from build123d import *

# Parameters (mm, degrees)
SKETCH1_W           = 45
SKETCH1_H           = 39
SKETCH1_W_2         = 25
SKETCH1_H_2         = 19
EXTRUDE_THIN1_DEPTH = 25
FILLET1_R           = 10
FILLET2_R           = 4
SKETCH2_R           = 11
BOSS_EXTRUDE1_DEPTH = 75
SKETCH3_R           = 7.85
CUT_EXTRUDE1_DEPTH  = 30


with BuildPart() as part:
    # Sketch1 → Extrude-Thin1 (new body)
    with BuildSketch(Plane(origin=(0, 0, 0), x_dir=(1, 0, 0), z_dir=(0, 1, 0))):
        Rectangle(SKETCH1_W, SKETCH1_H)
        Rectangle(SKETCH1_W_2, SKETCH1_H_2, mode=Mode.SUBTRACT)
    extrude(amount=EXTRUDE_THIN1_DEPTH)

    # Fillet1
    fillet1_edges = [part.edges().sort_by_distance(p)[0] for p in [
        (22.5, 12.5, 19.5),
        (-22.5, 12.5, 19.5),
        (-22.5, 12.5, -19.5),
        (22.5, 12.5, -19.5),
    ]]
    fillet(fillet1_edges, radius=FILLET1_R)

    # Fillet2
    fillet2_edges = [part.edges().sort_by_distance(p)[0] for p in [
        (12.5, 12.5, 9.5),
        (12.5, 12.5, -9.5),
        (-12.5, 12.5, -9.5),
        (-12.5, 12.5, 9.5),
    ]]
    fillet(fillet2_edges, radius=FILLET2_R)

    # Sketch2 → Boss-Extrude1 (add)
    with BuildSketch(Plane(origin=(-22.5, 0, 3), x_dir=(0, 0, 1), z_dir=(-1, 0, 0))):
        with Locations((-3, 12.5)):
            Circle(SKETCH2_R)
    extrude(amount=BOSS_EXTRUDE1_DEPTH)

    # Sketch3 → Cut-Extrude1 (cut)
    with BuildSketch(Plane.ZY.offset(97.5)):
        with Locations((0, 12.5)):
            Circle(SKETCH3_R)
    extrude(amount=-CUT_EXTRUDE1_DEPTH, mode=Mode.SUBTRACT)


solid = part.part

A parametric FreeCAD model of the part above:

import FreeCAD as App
import Part
import Sketcher

V = App.Vector
Q = App.Units.Quantity


def edges_at(feature, points):
    """Names of the edges that pass closest to the given points."""
    edges = feature.Shape.Edges
    near = lambda p: min(range(len(edges)), key=lambda i: edges[i].distToShape(Part.Vertex(*p))[0])
    return sorted({f"Edge{near(p) + 1}" for p in points})


def add_polygon(sketch, points):
    """Adds a closed chain of lines whose ends are joined by coincident constraints."""
    first, n = sketch.GeometryCount, len(points)
    for a, b in zip(points, points[1:] + points[:1]):
        sketch.addGeometry(Part.LineSegment(App.Vector(*a, 0), App.Vector(*b, 0)), False)
    for i in range(n):
        sketch.addConstraint(Sketcher.Constraint("Coincident", first + i, 2, first + (i + 1) % n, 1))

doc = App.newDocument("Part")
body = doc.addObject("PartDesign::Body", "Body")

sketch1 = body.newObject("Sketcher::SketchObject", "Sketch")
sketch1.AttachmentSupport = (doc.getObject("XZ_Plane"), [""])
sketch1.MapMode = "FlatFace"
add_polygon(sketch1, [(-22, -20), (-22, 20), (22, 20), (22, -20)])
add_polygon(sketch1, [(12, 10), (-12, 10), (-12, -10), (12, -10)])
sketch1.addConstraint([
    Sketcher.Constraint("Vertical", 0),
    Sketcher.Constraint("Horizontal", 1),
    Sketcher.Constraint("Vertical", 2),
    Sketcher.Constraint("Horizontal", 3),
    Sketcher.Constraint("Horizontal", 4),
    Sketcher.Constraint("Vertical", 5),
    Sketcher.Constraint("Horizontal", 6),
    Sketcher.Constraint("Vertical", 7),
    Sketcher.Constraint("Symmetric", 0, 2, 2, 2, -1, 1),
    Sketcher.Constraint("Symmetric", 4, 2, 6, 2, -1, 1),
    Sketcher.Constraint("DistanceX", 1, 1, 1, 2, Q("45 mm")),
    Sketcher.Constraint("DistanceX", 4, 2, 4, 1, Q("25 mm")),
    Sketcher.Constraint("DistanceY", 0, 1, 0, 2, Q("39 mm")),
    Sketcher.Constraint("DistanceY", 5, 2, 5, 1, Q("19 mm")),
])
pad1 = body.newObject("PartDesign::Pad", "Pad")
pad1.Profile = sketch1
pad1.Length = 25
pad1.Reversed = True
doc.recompute()

fillet = body.newObject("PartDesign::Fillet", "Fillet")
fillet.Base = (pad1, edges_at(pad1, [
    (22.5, 12.5, 19.5),
    (-22.5, 12.5, 19.5),
    (-22.5, 12.5, -19.5),
    (22.5, 12.5, -19.5),
]))
fillet.Radius = 10
doc.recompute()

fillet2 = body.newObject("PartDesign::Fillet", "Fillet001")
fillet2.Base = (fillet, edges_at(fillet, [
    (12.5, 12.5, 9.5),
    (12.5, 12.5, -9.5),
    (-12.5, 12.5, -9.5),
    (-12.5, 12.5, 9.5),
]))
fillet2.Radius = 4

sketch2 = body.newObject("Sketcher::SketchObject", "Sketch001")
sketch2.AttachmentSupport = (doc.getObject("YZ_Plane"), [""])
sketch2.MapMode = "FlatFace"
sketch2.AttachmentOffset = App.Placement(V(0, 0, -22.5), App.Rotation())
sketch2.addGeometry(Part.Circle(V(12, 0, 0), V(0, 0, 1), 11), False)
sketch2.addConstraint([
    Sketcher.Constraint("PointOnObject", 0, 3, -1),
    Sketcher.Constraint("Diameter", 0, Q("22 mm")),
    Sketcher.Constraint("DistanceX", -1, 1, 0, 3, Q("12.5 mm")),
])
pad2 = body.newObject("PartDesign::Pad", "Pad001")
pad2.Profile = sketch2
pad2.Length = 75
pad2.Reversed = True

sketch3 = body.newObject("Sketcher::SketchObject", "Sketch002")
sketch3.AttachmentSupport = (doc.getObject("YZ_Plane"), [""])
sketch3.MapMode = "FlatFace"
sketch3.AttachmentOffset = App.Placement(V(0, 0, -97.5), App.Rotation())
sketch3.addGeometry(Part.Circle(V(12, 0, 0), V(0, 0, 1), 8), False)
sketch3.addConstraint([
    Sketcher.Constraint("PointOnObject", 0, 3, -1),
    Sketcher.Constraint("Diameter", 0, Q("15.7 mm")),
    Sketcher.Constraint("DistanceX", -1, 1, 0, 3, Q("12.5 mm")),
])
pocket1 = body.newObject("PartDesign::Pocket", "Pocket")
pocket1.Profile = sketch3
pocket1.Length = 30
pocket1.Reversed = True

doc.recompute()
